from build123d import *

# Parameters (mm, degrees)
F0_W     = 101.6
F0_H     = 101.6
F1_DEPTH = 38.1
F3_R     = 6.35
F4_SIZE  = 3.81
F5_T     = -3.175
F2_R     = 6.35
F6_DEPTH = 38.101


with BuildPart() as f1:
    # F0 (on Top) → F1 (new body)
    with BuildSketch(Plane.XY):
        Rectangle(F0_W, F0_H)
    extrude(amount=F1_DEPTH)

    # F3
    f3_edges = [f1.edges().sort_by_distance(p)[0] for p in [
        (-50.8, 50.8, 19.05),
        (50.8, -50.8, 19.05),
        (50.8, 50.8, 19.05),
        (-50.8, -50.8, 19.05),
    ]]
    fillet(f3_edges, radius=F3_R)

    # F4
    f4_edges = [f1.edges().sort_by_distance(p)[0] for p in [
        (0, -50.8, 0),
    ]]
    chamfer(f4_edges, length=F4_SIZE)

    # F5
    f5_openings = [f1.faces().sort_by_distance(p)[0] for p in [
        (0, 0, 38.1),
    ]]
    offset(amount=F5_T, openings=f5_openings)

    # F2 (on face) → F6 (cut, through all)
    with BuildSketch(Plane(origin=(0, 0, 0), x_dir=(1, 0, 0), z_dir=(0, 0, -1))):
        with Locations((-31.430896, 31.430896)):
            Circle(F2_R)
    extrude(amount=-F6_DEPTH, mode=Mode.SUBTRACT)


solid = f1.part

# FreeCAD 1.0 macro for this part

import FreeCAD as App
import Part
import Sketcher
from FreeCAD import Vector
Q = App.Units.Quantity


def edges_at(feature, points):
    """Names of the edges that pass closest to the given points."""
    edges = feature.Shape.Edges
    near = lambda p: min(range(len(edges)), key=lambda i: edges[i].distToShape(Part.Vertex(*p))[0])
    return sorted({f"Edge{near(p) + 1}" for p in points})


def faces_at(feature, points):
    """Names of the faces that lie closest to the given points."""
    faces = feature.Shape.Faces
    near = lambda p: min(range(len(faces)), key=lambda i: faces[i].distToShape(Part.Vertex(*p))[0])
    return sorted({f"Face{near(p) + 1}" for p in points})

doc = App.newDocument("Part")
params = doc.addObject("Spreadsheet::Sheet", "Params")
for row, (alias, value) in enumerate([
    ("sketch1_width", "4 in"),
    ("pad1_length", "1.5 in"),
    ("fillet_radius", "0.25 in"),
    ("chamfer_size", "0.15 in"),
    ("thickness_wall", "0.125 in"),
    ("sketch2_diameter", "0.5 in"),
], start=1):
    params.set(f"A{row}", alias)
    params.set(f"B{row}", "=" + value)
    params.setAlias(f"B{row}", alias)

body = doc.addObject("PartDesign::Body", "Body")

# Sketch on XY plane
sketch1 = body.newObject("Sketcher::SketchObject", "Sketch")
sketch1.AttachmentSupport = (doc.getObject("XY_Plane"), [""])
sketch1.MapMode = "FlatFace"
sketch1.addGeometry([
    Part.LineSegment(Vector(-51, 51, 0), Vector(-51, -51, 0)),
    Part.LineSegment(Vector(-51, -51, 0), Vector(51, -51, 0)),
    Part.LineSegment(Vector(51, -51, 0), Vector(51, 51, 0)),
    Part.LineSegment(Vector(51, 51, 0), Vector(-51, 51, 0)),
], False)
sketch1.addConstraint([
    Sketcher.Constraint("Coincident", 0, 2, 1, 1),
    Sketcher.Constraint("Coincident", 1, 2, 2, 1),
    Sketcher.Constraint("Coincident", 2, 2, 3, 1),
    Sketcher.Constraint("Coincident", 3, 2, 0, 1),
    Sketcher.Constraint("Vertical", 0),
    Sketcher.Constraint("Horizontal", 1),
    Sketcher.Constraint("Vertical", 2),
    Sketcher.Constraint("Horizontal", 3),
    Sketcher.Constraint("Symmetric", 0, 2, 2, 2, -1, 1),
    Sketcher.Constraint("Equal", 3, 0),
    Sketcher.Constraint("DistanceX", 1, 1, 1, 2, Q("4 in")),
])
sketch1.setExpression("Constraints[10]", "Params.sketch1_width")
pad1 = body.newObject("PartDesign::Pad", "Pad")
pad1.Profile = sketch1
pad1.setExpression("Length", "Params.pad1_length")
doc.recompute()

fillet = body.newObject("PartDesign::Fillet", "Fillet")
fillet.Base = (pad1, edges_at(pad1, [
    (-50.8, 50.8, 19.05),
    (50.8, -50.8, 19.05),
    (50.8, 50.8, 19.05),
    (-50.8, -50.8, 19.05),
]))
fillet.setExpression("Radius", "Params.fillet_radius")
doc.recompute()

chamfer = body.newObject("PartDesign::Chamfer", "Chamfer")
chamfer.Base = (fillet, edges_at(fillet, [(0, -50.8, 0)]))
chamfer.setExpression("Size", "Params.chamfer_size")
doc.recompute()

thickness = body.newObject("PartDesign::Thickness", "Thickness")
thickness.Base = (chamfer, faces_at(chamfer, [(0, 0, 38.1)]))
thickness.setExpression("Value", "Params.thickness_wall")
thickness.Reversed = True
thickness.Join = "Arc"

# Sketch on XY plane
sketch2 = body.newObject("Sketcher::SketchObject", "Sketch001")
sketch2.AttachmentSupport = (doc.getObject("XY_Plane"), [""])
sketch2.MapMode = "FlatFace"
sketch2.addGeometry(Part.Circle(Vector(-31, -31, 0), Vector(0, 0, 1), 6), False)
sketch2.addConstraint([
    Sketcher.Constraint("Diameter", 0, Q("0.5 in")),
    Sketcher.Constraint("DistanceX", 0, 3, -1, 1, 31.430896),
    Sketcher.Constraint("DistanceY", 0, 3, -1, 1, 31.430896),
])
sketch2.setExpression("Constraints[0]", "Params.sketch2_diameter")
pocket1 = body.newObject("PartDesign::Pocket", "Pocket")
pocket1.Profile = sketch2
pocket1.Type = "ThroughAll"
pocket1.Reversed = True

doc.recompute()
